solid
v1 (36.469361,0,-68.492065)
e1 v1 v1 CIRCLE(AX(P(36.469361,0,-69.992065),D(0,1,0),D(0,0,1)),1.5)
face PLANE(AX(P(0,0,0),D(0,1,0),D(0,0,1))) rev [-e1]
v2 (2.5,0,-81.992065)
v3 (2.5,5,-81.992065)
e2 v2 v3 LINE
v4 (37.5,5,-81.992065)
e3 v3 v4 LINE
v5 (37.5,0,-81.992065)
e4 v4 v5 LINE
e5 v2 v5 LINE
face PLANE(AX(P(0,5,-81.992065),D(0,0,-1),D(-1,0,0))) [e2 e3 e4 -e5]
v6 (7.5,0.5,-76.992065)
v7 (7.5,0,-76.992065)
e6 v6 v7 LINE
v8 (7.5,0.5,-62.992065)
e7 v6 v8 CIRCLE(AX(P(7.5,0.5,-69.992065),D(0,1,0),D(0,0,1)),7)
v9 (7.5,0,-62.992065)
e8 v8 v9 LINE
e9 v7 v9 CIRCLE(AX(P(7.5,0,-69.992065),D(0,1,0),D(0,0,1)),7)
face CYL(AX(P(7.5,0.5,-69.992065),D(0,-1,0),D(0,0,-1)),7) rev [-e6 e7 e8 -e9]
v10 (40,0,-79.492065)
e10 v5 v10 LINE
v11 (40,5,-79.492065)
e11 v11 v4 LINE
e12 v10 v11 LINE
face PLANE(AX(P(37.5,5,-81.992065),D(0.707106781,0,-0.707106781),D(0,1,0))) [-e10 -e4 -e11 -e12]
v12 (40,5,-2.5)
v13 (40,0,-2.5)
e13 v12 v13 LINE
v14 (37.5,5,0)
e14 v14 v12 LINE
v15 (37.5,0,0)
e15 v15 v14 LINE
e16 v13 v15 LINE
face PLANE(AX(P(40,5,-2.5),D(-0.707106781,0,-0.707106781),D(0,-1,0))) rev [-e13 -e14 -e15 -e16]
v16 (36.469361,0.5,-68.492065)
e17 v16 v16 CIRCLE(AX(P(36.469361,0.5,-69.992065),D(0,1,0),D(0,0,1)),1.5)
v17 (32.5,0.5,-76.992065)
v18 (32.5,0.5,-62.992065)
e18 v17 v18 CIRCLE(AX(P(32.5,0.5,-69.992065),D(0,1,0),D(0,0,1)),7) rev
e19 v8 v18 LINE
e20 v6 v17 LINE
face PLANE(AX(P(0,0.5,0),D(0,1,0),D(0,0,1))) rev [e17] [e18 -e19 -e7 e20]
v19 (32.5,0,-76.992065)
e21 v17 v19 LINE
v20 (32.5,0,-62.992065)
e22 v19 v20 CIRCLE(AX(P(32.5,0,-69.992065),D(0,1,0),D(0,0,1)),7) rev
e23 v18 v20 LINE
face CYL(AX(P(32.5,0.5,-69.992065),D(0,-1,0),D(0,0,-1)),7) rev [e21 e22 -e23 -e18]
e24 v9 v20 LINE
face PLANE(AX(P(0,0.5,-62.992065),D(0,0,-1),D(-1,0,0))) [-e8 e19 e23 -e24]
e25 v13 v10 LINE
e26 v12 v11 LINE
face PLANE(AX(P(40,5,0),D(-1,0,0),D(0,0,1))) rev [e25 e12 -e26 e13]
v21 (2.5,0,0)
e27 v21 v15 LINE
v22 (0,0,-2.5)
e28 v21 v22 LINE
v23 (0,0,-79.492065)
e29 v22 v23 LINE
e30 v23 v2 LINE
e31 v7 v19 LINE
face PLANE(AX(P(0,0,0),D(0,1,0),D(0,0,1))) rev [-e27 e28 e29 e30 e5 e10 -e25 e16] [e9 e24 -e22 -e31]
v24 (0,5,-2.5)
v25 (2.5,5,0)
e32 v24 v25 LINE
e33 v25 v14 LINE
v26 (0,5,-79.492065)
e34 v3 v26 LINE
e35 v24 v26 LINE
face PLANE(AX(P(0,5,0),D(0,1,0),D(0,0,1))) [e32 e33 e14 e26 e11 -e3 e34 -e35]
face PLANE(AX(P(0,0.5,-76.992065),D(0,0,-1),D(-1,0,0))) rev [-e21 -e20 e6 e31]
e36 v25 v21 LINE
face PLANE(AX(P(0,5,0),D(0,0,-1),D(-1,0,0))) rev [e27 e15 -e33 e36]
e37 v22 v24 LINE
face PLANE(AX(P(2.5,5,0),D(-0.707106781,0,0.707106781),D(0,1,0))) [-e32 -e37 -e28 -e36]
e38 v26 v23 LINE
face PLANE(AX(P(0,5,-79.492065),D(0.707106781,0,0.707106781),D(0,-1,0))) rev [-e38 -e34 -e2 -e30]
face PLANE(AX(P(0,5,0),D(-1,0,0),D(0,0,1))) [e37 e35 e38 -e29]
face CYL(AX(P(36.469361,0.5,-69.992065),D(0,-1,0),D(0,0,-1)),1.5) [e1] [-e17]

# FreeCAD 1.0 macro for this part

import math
import FreeCAD as App
import Part
import Sketcher
Q = App.Units.Quantity


def edges_at(feature, points):
    """Names of the edges that pass closest to the given points."""
    edges = feature.Shape.Edges
    near = lambda p: min(range(len(edges)), key=lambda i: edges[i].distToShape(Part.Vertex(*p))[0])
    return sorted({f"Edge{near(p) + 1}" for p in points})

doc = App.newDocument("Part")
params = doc.addObject("Spreadsheet::Sheet", "Params")
for row, (alias, value) in enumerate([
    ("sketch1_width", "40 mm"),
    ("pad1_length", "5 mm"),
    ("chamfer_size", "2.5 mm"),
    ("chamfer2_size", "2.5 mm"),
    ("chamfer3_size", "2.5 mm"),
    ("chamfer4_size", "2.5 mm"),
    ("sketch2_diameter", "3 mm"),
    ("sketch2_radius", "7 mm"),
    ("sketch2_width", "25 mm"),
    ("pocket1_length", "0.5 mm"),
], start=1):
    params.set(f"A{row}", alias)
    params.set(f"B{row}", "=" + value)
    params.setAlias(f"B{row}", alias)

body = doc.addObject("PartDesign::Body", "Body")

# Sketch on XZ plane
sketch1 = body.newObject("Sketcher::SketchObject", "Sketch")
sketch1.AttachmentSupport = (doc.getObject("XZ_Plane"), [""])
sketch1.MapMode = "FlatFace"
sketch1.addGeometry(Part.LineSegment(App.Vector(0, -81.992065, 0), App.Vector(0, 0, 0)), False)
sketch1.addGeometry(Part.LineSegment(App.Vector(0, 0, 0), App.Vector(40, 0, 0)), False)
sketch1.addGeometry(Part.LineSegment(App.Vector(40, 0, 0), App.Vector(40, -81.992065, 0)), False)
sketch1.addGeometry(Part.LineSegment(App.Vector(40, -81.992065, 0), App.Vector(0, -81.992065, 0)), False)
sketch1.addConstraint(Sketcher.Constraint("Coincident", 0, 2, 1, 1))
sketch1.addConstraint(Sketcher.Constraint("Coincident", 1, 2, 2, 1))
sketch1.addConstraint(Sketcher.Constraint("Coincident", 2, 2, 3, 1))
sketch1.addConstraint(Sketcher.Constraint("Coincident", 3, 2, 0, 1))
sketch1.addConstraint(Sketcher.Constraint("Vertical", 0))
sketch1.addConstraint(Sketcher.Constraint("Horizontal", 1))
sketch1.addConstraint(Sketcher.Constraint("Vertical", 2))
sketch1.addConstraint(Sketcher.Constraint("Horizontal", 3))
sketch1.addConstraint(Sketcher.Constraint("Coincident", 0, 2, -1, 1))
sketch1.addConstraint(Sketcher.Constraint("DistanceX", 1, 1, 1, 2, Q("40 mm")))
sketch1.addConstraint(Sketcher.Constraint("DistanceY", 0, 1, 0, 2, Q("81.992065 mm")))
sketch1.setExpression("Constraints[9]", "Params.sketch1_width")
pad1 = body.newObject("PartDesign::Pad", "Pad")
pad1.Profile = sketch1
pad1.setExpression("Length", "Params.pad1_length")
pad1.Reversed = True
doc.recompute()

chamfer = body.newObject("PartDesign::Chamfer", "Chamfer")
chamfer.Base = (pad1, edges_at(pad1, [(40, 2.5, -81.992)]))
chamfer.setExpression("Size", "Params.chamfer_size")
doc.recompute()

chamfer2 = body.newObject("PartDesign::Chamfer", "Chamfer001")
chamfer2.Base = (chamfer, edges_at(chamfer, [(0, 2.5, -81.992)]))
chamfer2.setExpression("Size", "Params.chamfer2_size")
doc.recompute()

chamfer3 = body.newObject("PartDesign::Chamfer", "Chamfer002")
chamfer3.Base = (chamfer2, edges_at(chamfer2, [(0, 2.5, 0)]))
chamfer3.setExpression("Size", "Params.chamfer3_size")
doc.recompute()

chamfer4 = body.newObject("PartDesign::Chamfer", "Chamfer003")
chamfer4.Base = (chamfer3, edges_at(chamfer3, [(40, 2.5, 0)]))
chamfer4.setExpression("Size", "Params.chamfer4_size")

# Sketch on XZ plane
sketch2 = body.newObject("Sketcher::SketchObject", "Sketch001")
sketch2.AttachmentSupport = (doc.getObject("XZ_Plane"), [""])
sketch2.MapMode = "FlatFace"
sketch2.addGeometry(Part.LineSegment(App.Vector(7.5, -62.992065, 0), App.Vector(32.5, -62.992065, 0)), False)
sketch2.addGeometry(Part.ArcOfCircle(Part.Circle(App.Vector(32.5, -69.992065, 0), App.Vector(0, 0, 1), 7), math.radians(-90), math.radians(90)), False)
sketch2.addGeometry(Part.LineSegment(App.Vector(32.5, -76.992065, 0), App.Vector(7.5, -76.992065, 0)), False)
sketch2.addGeometry(Part.ArcOfCircle(Part.Circle(App.Vector(7.5, -69.992065, 0), App.Vector(0, 0, 1), 7), math.radians(90), math.radians(270)), False)
sketch2.addGeometry(Part.Circle(App.Vector(36.469361, -69.992065, 0), App.Vector(0, 0, 1), 1.5), False)
sketch2.addConstraint(Sketcher.Constraint("Tangent", 0, 2, 1, 2))
sketch2.addConstraint(Sketcher.Constraint("Tangent", 1, 1, 2, 1))
sketch2.addConstraint(Sketcher.Constraint("Tangent", 2, 2, 3, 2))
sketch2.addConstraint(Sketcher.Constraint("Tangent", 3, 1, 0, 1))
sketch2.addConstraint(Sketcher.Constraint("Horizontal", 0))
sketch2.addConstraint(Sketcher.Constraint("Horizontal", 2))
sketch2.addConstraint(Sketcher.Constraint("Horizontal", 3, 3, 4, 3))
sketch2.addConstraint(Sketcher.Constraint("Diameter", 4, Q("3 mm")))
sketch2.addConstraint(Sketcher.Constraint("Radius", 1, Q("7 mm")))
sketch2.addConstraint(Sketcher.Constraint("DistanceX", 0, 1, 0, 2, Q("25 mm")))
sketch2.addConstraint(Sketcher.Constraint("DistanceX", -1, 1, 1, 3, Q("32.5 mm")))
sketch2.addConstraint(Sketcher.Constraint("DistanceX", -1, 1, 4, 3, Q("36.469361 mm")))
sketch2.addConstraint(Sketcher.Constraint("DistanceY", 1, 3, -1, 1, Q("69.992065 mm")))
sketch2.setExpression("Constraints[7]", "Params.sketch2_diameter")
sketch2.setExpression("Constraints[8]", "Params.sketch2_radius")
sketch2.setExpression("Constraints[9]", "Params.sketch2_width")
pocket1 = body.newObject("PartDesign::Pocket", "Pocket")
pocket1.Profile = sketch2
pocket1.setExpression("Length", "Params.pocket1_length")

doc.recompute()
